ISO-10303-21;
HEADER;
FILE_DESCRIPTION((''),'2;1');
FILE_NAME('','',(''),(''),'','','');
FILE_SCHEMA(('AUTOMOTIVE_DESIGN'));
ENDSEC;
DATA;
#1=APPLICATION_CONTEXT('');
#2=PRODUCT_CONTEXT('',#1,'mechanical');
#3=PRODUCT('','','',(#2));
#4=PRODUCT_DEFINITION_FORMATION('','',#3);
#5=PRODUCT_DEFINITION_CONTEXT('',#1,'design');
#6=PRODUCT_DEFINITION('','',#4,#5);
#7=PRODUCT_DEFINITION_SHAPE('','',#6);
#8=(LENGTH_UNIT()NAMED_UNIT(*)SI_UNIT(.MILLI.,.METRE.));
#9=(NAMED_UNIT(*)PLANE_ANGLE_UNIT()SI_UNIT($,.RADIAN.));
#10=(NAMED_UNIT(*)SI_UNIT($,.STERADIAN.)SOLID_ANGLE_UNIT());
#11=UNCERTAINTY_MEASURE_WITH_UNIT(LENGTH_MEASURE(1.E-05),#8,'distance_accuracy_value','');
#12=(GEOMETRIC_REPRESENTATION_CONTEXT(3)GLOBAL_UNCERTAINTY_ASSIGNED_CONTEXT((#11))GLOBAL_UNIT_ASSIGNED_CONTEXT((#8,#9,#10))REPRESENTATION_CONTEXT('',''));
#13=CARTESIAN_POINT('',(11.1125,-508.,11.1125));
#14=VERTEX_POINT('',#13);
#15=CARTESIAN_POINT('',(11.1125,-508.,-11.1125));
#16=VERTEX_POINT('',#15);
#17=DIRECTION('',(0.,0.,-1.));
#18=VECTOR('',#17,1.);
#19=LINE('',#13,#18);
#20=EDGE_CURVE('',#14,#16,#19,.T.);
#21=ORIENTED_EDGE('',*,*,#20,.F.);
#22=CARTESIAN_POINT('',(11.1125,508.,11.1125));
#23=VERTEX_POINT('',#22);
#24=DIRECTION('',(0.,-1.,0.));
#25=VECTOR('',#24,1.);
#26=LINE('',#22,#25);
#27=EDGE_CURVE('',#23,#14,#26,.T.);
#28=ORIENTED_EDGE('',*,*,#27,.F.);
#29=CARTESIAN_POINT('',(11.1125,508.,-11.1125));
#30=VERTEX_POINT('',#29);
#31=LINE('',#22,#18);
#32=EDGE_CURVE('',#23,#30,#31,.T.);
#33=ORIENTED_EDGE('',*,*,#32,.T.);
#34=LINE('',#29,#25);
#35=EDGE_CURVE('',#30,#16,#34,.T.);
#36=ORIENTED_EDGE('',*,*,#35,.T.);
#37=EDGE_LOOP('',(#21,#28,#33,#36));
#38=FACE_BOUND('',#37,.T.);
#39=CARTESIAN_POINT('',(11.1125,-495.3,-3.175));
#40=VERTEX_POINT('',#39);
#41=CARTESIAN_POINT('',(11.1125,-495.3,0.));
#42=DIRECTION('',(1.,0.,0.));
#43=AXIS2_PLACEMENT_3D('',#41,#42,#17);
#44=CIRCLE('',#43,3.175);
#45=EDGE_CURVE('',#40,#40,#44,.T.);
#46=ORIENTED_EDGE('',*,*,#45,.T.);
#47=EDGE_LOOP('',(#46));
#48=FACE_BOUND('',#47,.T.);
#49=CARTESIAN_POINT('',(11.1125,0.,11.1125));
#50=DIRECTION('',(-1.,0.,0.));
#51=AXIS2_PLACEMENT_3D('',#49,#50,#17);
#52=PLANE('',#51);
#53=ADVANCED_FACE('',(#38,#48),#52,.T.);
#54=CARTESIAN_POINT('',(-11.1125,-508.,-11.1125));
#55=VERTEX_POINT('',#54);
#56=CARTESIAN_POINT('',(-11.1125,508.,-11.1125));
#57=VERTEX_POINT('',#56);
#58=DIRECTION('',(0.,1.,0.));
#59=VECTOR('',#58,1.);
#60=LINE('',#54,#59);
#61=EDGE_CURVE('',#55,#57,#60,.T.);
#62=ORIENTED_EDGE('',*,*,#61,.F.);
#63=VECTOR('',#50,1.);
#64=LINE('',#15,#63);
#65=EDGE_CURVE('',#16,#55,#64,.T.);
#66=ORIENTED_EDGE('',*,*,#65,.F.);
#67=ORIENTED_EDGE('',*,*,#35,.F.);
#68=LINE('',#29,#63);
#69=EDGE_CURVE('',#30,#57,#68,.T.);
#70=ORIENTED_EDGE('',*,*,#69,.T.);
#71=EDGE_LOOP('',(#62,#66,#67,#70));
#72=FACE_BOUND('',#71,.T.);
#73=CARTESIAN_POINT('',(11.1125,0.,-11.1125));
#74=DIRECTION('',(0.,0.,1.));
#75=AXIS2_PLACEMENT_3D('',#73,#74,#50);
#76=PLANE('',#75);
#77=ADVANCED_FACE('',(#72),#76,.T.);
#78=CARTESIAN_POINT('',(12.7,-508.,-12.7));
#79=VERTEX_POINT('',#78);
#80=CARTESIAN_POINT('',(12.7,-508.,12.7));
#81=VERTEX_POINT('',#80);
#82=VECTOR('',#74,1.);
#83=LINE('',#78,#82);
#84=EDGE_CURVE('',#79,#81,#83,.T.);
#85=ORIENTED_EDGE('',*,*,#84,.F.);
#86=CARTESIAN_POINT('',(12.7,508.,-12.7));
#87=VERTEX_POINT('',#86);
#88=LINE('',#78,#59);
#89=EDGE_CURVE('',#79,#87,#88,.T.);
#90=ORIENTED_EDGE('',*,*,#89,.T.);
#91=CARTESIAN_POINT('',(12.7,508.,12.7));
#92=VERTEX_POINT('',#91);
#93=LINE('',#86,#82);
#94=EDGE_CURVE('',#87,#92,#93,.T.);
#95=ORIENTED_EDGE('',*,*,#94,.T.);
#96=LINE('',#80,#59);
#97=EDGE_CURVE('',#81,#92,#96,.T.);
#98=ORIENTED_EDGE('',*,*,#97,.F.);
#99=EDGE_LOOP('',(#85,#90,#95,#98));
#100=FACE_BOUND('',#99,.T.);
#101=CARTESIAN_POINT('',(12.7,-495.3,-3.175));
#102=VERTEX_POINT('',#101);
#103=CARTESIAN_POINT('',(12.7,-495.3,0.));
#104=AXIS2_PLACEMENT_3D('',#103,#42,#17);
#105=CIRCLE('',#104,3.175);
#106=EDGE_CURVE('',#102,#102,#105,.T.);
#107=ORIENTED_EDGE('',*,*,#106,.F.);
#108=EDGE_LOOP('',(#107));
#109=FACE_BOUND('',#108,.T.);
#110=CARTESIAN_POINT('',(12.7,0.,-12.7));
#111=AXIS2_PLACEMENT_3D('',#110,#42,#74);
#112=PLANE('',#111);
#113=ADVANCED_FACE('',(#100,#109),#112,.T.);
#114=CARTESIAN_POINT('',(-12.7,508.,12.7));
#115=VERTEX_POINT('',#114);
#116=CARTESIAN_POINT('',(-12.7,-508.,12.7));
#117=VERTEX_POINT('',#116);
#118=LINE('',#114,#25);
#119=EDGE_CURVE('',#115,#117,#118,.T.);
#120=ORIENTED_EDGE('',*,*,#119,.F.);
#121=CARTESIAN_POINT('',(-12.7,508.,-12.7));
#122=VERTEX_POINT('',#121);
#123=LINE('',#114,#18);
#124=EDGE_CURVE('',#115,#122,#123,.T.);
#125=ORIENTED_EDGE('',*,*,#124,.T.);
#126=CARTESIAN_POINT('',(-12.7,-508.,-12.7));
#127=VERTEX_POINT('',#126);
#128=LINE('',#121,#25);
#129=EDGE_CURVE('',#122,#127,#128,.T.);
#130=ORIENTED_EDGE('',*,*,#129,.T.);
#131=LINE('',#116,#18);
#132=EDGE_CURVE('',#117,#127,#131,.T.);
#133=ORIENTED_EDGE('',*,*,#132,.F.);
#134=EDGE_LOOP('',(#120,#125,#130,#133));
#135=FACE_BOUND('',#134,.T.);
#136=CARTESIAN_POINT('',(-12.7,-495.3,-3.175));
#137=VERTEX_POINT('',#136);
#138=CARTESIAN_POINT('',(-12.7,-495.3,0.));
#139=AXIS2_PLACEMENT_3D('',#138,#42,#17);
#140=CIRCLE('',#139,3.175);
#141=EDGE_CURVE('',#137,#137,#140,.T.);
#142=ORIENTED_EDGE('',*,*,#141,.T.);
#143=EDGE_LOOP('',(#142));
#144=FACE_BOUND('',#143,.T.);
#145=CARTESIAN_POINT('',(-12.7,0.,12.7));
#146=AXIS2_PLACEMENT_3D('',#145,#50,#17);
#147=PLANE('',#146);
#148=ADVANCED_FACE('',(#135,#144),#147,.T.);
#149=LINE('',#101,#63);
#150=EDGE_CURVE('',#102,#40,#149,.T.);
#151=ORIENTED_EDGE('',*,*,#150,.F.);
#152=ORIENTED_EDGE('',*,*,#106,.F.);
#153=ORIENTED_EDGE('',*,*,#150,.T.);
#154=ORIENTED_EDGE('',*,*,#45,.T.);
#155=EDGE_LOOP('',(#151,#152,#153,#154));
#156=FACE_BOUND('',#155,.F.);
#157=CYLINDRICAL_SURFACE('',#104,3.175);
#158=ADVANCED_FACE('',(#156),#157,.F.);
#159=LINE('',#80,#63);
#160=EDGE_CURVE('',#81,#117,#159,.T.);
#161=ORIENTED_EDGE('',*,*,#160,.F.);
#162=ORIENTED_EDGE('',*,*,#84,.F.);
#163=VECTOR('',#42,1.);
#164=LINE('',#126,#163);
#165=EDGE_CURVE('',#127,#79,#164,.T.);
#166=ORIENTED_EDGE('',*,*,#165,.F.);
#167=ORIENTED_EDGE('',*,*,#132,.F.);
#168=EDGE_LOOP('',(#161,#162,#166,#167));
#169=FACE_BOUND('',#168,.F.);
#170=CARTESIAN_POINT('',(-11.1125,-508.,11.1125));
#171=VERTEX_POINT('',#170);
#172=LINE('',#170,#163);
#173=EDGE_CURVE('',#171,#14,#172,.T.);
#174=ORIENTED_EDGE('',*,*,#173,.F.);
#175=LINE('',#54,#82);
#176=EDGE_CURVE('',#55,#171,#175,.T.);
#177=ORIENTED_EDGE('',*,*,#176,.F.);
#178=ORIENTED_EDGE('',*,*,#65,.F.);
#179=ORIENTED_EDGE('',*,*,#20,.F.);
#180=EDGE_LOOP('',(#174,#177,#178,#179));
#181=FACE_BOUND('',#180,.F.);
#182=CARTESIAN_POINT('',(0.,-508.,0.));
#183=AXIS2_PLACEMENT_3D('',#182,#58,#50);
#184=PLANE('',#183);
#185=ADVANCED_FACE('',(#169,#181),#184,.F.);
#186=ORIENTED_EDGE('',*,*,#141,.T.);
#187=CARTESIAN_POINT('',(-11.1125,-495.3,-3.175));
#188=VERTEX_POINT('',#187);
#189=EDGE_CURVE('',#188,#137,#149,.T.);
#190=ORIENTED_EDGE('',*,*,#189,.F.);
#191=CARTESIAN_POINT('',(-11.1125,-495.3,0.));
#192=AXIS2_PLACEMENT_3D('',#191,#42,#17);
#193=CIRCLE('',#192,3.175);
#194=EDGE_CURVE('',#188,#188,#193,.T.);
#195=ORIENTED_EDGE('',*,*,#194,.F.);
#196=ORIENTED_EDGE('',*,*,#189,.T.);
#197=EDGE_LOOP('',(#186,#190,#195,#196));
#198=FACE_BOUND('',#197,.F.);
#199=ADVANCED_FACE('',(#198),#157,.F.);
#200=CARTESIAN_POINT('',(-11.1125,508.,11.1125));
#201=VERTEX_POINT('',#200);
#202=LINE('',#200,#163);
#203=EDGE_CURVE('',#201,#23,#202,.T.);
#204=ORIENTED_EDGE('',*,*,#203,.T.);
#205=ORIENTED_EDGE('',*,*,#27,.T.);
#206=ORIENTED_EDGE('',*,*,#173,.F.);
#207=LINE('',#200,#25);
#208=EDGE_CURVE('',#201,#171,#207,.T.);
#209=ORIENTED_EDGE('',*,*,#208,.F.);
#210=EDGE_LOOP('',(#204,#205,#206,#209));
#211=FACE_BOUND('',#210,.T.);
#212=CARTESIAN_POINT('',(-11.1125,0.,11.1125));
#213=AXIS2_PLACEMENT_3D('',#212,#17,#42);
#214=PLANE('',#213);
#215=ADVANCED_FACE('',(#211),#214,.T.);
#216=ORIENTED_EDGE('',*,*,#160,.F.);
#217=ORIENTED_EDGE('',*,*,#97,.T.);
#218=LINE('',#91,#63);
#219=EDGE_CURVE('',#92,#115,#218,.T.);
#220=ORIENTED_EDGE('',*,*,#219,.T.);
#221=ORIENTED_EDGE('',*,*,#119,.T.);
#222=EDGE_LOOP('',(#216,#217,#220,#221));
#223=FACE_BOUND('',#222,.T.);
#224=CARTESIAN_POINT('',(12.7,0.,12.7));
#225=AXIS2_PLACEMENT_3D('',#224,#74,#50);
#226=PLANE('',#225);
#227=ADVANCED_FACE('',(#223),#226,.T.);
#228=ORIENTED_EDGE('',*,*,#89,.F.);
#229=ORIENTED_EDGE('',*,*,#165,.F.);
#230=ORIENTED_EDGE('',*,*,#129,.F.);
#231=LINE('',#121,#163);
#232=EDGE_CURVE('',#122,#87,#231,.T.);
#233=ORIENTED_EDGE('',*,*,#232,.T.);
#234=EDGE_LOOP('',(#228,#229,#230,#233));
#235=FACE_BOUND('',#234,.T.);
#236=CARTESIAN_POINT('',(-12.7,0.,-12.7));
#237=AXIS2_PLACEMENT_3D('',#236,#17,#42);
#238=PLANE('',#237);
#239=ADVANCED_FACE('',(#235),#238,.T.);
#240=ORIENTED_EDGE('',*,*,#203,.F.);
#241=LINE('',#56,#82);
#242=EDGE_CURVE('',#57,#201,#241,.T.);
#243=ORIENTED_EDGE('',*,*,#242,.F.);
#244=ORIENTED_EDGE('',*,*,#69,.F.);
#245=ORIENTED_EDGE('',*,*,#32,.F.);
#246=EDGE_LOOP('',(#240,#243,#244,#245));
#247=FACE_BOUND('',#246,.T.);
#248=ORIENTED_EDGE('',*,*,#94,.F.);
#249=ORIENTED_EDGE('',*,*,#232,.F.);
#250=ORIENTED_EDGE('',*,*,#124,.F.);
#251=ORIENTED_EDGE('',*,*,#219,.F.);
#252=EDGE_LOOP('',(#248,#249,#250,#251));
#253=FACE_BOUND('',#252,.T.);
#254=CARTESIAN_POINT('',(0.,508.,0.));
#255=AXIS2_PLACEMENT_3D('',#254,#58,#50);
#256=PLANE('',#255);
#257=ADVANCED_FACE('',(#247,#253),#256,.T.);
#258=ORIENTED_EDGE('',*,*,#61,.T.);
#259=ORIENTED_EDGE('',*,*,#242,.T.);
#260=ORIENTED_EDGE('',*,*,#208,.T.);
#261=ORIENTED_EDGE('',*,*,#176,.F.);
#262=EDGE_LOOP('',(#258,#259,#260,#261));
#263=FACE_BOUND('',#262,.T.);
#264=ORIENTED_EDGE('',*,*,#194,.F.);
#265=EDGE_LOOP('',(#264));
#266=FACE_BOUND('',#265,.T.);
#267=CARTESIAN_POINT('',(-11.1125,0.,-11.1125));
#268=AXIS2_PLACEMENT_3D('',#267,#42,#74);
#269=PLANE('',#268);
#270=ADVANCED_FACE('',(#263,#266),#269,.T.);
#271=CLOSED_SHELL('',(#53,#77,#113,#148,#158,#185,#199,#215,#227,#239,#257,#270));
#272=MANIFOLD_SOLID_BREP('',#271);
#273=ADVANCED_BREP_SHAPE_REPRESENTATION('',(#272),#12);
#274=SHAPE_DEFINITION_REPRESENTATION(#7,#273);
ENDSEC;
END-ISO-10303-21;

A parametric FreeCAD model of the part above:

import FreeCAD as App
import Part
import Sketcher
Q = App.Units.Quantity


def add_polygon(sketch, points):
    """Adds a closed chain of lines whose ends are joined by coincident constraints."""
    first, n = sketch.GeometryCount, len(points)
    for a, b in zip(points, points[1:] + points[:1]):
        sketch.addGeometry(Part.LineSegment(App.Vector(*a, 0), App.Vector(*b, 0)), False)
    for i in range(n):
        sketch.addConstraint(Sketcher.Constraint("Coincident", first + i, 2, first + (i + 1) % n, 1))

doc = App.newDocument("Part")
body = doc.addObject("PartDesign::Body", "Body")

sketch1 = body.newObject("Sketcher::SketchObject", "Sketch")
sketch1.AttachmentSupport = (doc.getObject("XZ_Plane"), [""])
sketch1.MapMode = "FlatFace"
add_polygon(sketch1, [(-12.7, 12.7), (12.7, 12.7), (12.7, -12.7), (-12.7, -12.7)])
add_polygon(sketch1, [(-11.1125, 11.1125), (-11.1125, -11.1125), (11.1125, -11.1125), (11.1125, 11.1125)])
sketch1.addConstraint(Sketcher.Constraint("Horizontal", 0))
sketch1.addConstraint(Sketcher.Constraint("Vertical", 1))
sketch1.addConstraint(Sketcher.Constraint("Horizontal", 2))
sketch1.addConstraint(Sketcher.Constraint("Vertical", 3))
sketch1.addConstraint(Sketcher.Constraint("Vertical", 4))
sketch1.addConstraint(Sketcher.Constraint("Horizontal", 5))
sketch1.addConstraint(Sketcher.Constraint("Vertical", 6))
sketch1.addConstraint(Sketcher.Constraint("Horizontal", 7))
sketch1.addConstraint(Sketcher.Constraint("Symmetric", 0, 2, 2, 2, -1, 1))
sketch1.addConstraint(Sketcher.Constraint("Symmetric", 4, 2, 6, 2, -1, 1))
sketch1.addConstraint(Sketcher.Constraint("Equal", 2, 1))
sketch1.addConstraint(Sketcher.Constraint("Equal", 7, 4))
sketch1.addConstraint(Sketcher.Constraint("DistanceX", 0, 1, 0, 2, Q("1 in")))
sketch1.addConstraint(Sketcher.Constraint("DistanceX", 2, 2, 4, 2, Q("0.0625 in")))
pad1 = body.newObject("PartDesign::Pad", "Pad")
pad1.Profile = sketch1
pad1.Length = Q("40 in")
pad1.Midplane = True

sketch2 = body.newObject("Sketcher::SketchObject", "Sketch001")
sketch2.AttachmentSupport = (doc.getObject("YZ_Plane"), [""])
sketch2.MapMode = "FlatFace"
sketch2.AttachmentOffset = App.Placement(App.Vector(0, 0, 0.5 * 25.4), App.Rotation())
sketch2.addGeometry(Part.Circle(App.Vector(-495.3, 0, 0), App.Vector(0, 0, 1), 3.175), False)
sketch2.addConstraint(Sketcher.Constraint("PointOnObject", 0, 3, -1))
sketch2.addConstraint(Sketcher.Constraint("Diameter", 0, Q("0.25 in")))
sketch2.addConstraint(Sketcher.Constraint("DistanceX", 0, 3, -1, 1, Q("19.5 in")))
pocket1 = body.newObject("PartDesign::Pocket", "Pocket")
pocket1.Profile = sketch2
pocket1.Type = "ThroughAll"

doc.recompute()
